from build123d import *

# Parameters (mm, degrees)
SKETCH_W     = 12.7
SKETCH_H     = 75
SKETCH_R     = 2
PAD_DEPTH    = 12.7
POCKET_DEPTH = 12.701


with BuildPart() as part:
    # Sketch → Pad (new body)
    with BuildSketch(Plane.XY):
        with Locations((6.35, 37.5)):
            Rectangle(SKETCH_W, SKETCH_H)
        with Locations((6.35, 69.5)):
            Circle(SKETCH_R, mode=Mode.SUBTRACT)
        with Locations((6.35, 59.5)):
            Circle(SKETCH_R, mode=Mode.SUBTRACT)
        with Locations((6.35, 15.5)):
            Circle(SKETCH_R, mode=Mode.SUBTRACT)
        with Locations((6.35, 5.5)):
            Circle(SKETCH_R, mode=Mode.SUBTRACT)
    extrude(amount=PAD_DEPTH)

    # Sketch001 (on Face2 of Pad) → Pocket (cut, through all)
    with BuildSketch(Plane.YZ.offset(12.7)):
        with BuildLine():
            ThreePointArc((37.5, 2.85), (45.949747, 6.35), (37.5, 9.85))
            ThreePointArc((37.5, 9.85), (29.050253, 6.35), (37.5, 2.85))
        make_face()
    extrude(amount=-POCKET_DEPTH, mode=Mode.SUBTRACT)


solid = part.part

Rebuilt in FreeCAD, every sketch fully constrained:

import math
import FreeCAD as App
import Part
import Sketcher
Q = App.Units.Quantity


def add_polygon(sketch, points):
    """Adds a closed chain of lines whose ends are joined by coincident constraints."""
    first, n = sketch.GeometryCount, len(points)
    for a, b in zip(points, points[1:] + points[:1]):
        sketch.addGeometry(Part.LineSegment(App.Vector(*a, 0), App.Vector(*b, 0)), False)
    for i in range(n):
        sketch.addConstraint(Sketcher.Constraint("Coincident", first + i, 2, first + (i + 1) % n, 1))

doc = App.newDocument("Part")
params = doc.addObject("Spreadsheet::Sheet", "Params")
for row, (alias, value) in enumerate([
    ("sketch1_diameter", "4 mm"),
    ("sketch1_height", "75 mm"),
    ("sketch1_width", "12.7 mm"),
    ("pad1_length", "12.7 mm"),
], start=1):
    params.set(f"A{row}", alias)
    params.set(f"B{row}", "=" + value)
    params.setAlias(f"B{row}", alias)

body = doc.addObject("PartDesign::Body", "Body")

# Sketch on XY plane
sketch1 = doc.addObject("Sketcher::SketchObject", "Sketch")
body.addObject(sketch1)
sketch1.AttachmentSupport = (doc.XY_Plane, [""])
sketch1.MapMode = "FlatFace"
add_polygon(sketch1, [(0, 75), (0, 0), (12.7, 0), (12.7, 75)])  # lines 0-3
sketch1.addGeometry(Part.Circle(App.Vector(6.3, 5.5, 0), App.Vector(0, 0, 1), 2), False)  # 4
sketch1.addGeometry(Part.Circle(App.Vector(6.3, 15.5, 0), App.Vector(0, 0, 1), 2), False)  # 5
sketch1.addGeometry(Part.Circle(App.Vector(6.3, 59.5, 0), App.Vector(0, 0, 1), 2), False)  # 6
sketch1.addGeometry(Part.Circle(App.Vector(6.3, 69.5, 0), App.Vector(0, 0, 1), 2), False)  # 7
sketch1.addConstraint([
    Sketcher.Constraint("Vertical", 0),
    Sketcher.Constraint("Horizontal", 1),
    Sketcher.Constraint("Vertical", 2),
    Sketcher.Constraint("Horizontal", 3),
    Sketcher.Constraint("Coincident", 0, 2, -1, 1),
    Sketcher.Constraint("Equal", 4, 5),
    Sketcher.Constraint("Equal", 5, 6),
    Sketcher.Constraint("Equal", 6, 7),
    Sketcher.Constraint("Vertical", 4, 3, 5, 3),
    Sketcher.Constraint("Vertical", 5, 3, 6, 3),
    Sketcher.Constraint("Vertical", 6, 3, 7, 3),
    Sketcher.Constraint("Diameter", 4, Q("4 mm")),
    Sketcher.Constraint("DistanceY", 0, 2, 0, 1, Q("75 mm")),
    Sketcher.Constraint("DistanceX", 1, 1, 1, 2, Q("12.7 mm")),
    Sketcher.Constraint("DistanceY", 4, 3, 5, 3, Q("10 mm")),
    Sketcher.Constraint("DistanceY", 5, 3, 6, 3, Q("44 mm")),
    Sketcher.Constraint("DistanceY", 6, 3, 7, 3, Q("10 mm")),
    Sketcher.Constraint("DistanceY", -1, 1, 4, 3, Q("5.5 mm")),
    Sketcher.Constraint("DistanceX", -1, 1, 4, 3, Q("6.35 mm")),
])
sketch1.setExpression("Constraints[15]", "Params.sketch1_diameter")
sketch1.setExpression("Constraints[16]", "Params.sketch1_height")
sketch1.setExpression("Constraints[17]", "Params.sketch1_width")
pad1 = doc.addObject("PartDesign::Pad", "Pad")
body.addObject(pad1)
pad1.Profile = sketch1
pad1.setExpression("Length", "Params.pad1_length")

# Sketch on YZ plane
sketch2 = doc.addObject("Sketcher::SketchObject", "Sketch001")
body.addObject(sketch2)
sketch2.AttachmentSupport = (doc.YZ_Plane, [""])
sketch2.MapMode = "FlatFace"
sketch2.AttachmentOffset = App.Placement(App.Vector(0, 0, 12.7), App.Rotation())
sketch2.addGeometry([
    Part.ArcOfCircle(Part.Circle(App.Vector(41, 6.3, 0), App.Vector(0, 0, 1), 4.9), math.radians(-135), math.radians(135)),
    Part.ArcOfCircle(Part.Circle(App.Vector(34, 6.3, 0), App.Vector(0, 0, 1), 4.9), math.radians(45), math.radians(315)),
], False)
sketch2.addConstraint([
    Sketcher.Constraint("Coincident", 0, 1, 1, 2),
    Sketcher.Constraint("Coincident", 1, 1, 0, 2),
    Sketcher.Constraint("Equal", 0, 1),
    Sketcher.Constraint("Horizontal", 0, 3, 1, 3),
    Sketcher.Constraint("DistanceX", -1, 1, 0, 3, Q("41 mm")),
    Sketcher.Constraint("DistanceX", -1, 1, 1, 3, Q("34 mm")),
    Sketcher.Constraint("DistanceY", 0, 1, 1, 1, Q("7 mm")),
    Sketcher.Constraint("DistanceY", -1, 1, 0, 3, Q("6.35 mm")),
])
pocket1 = doc.addObject("PartDesign::Pocket", "Pocket")
body.addObject(pocket1)
pocket1.Profile = sketch2
pocket1.Type = "ThroughAll"

doc.recompute()
